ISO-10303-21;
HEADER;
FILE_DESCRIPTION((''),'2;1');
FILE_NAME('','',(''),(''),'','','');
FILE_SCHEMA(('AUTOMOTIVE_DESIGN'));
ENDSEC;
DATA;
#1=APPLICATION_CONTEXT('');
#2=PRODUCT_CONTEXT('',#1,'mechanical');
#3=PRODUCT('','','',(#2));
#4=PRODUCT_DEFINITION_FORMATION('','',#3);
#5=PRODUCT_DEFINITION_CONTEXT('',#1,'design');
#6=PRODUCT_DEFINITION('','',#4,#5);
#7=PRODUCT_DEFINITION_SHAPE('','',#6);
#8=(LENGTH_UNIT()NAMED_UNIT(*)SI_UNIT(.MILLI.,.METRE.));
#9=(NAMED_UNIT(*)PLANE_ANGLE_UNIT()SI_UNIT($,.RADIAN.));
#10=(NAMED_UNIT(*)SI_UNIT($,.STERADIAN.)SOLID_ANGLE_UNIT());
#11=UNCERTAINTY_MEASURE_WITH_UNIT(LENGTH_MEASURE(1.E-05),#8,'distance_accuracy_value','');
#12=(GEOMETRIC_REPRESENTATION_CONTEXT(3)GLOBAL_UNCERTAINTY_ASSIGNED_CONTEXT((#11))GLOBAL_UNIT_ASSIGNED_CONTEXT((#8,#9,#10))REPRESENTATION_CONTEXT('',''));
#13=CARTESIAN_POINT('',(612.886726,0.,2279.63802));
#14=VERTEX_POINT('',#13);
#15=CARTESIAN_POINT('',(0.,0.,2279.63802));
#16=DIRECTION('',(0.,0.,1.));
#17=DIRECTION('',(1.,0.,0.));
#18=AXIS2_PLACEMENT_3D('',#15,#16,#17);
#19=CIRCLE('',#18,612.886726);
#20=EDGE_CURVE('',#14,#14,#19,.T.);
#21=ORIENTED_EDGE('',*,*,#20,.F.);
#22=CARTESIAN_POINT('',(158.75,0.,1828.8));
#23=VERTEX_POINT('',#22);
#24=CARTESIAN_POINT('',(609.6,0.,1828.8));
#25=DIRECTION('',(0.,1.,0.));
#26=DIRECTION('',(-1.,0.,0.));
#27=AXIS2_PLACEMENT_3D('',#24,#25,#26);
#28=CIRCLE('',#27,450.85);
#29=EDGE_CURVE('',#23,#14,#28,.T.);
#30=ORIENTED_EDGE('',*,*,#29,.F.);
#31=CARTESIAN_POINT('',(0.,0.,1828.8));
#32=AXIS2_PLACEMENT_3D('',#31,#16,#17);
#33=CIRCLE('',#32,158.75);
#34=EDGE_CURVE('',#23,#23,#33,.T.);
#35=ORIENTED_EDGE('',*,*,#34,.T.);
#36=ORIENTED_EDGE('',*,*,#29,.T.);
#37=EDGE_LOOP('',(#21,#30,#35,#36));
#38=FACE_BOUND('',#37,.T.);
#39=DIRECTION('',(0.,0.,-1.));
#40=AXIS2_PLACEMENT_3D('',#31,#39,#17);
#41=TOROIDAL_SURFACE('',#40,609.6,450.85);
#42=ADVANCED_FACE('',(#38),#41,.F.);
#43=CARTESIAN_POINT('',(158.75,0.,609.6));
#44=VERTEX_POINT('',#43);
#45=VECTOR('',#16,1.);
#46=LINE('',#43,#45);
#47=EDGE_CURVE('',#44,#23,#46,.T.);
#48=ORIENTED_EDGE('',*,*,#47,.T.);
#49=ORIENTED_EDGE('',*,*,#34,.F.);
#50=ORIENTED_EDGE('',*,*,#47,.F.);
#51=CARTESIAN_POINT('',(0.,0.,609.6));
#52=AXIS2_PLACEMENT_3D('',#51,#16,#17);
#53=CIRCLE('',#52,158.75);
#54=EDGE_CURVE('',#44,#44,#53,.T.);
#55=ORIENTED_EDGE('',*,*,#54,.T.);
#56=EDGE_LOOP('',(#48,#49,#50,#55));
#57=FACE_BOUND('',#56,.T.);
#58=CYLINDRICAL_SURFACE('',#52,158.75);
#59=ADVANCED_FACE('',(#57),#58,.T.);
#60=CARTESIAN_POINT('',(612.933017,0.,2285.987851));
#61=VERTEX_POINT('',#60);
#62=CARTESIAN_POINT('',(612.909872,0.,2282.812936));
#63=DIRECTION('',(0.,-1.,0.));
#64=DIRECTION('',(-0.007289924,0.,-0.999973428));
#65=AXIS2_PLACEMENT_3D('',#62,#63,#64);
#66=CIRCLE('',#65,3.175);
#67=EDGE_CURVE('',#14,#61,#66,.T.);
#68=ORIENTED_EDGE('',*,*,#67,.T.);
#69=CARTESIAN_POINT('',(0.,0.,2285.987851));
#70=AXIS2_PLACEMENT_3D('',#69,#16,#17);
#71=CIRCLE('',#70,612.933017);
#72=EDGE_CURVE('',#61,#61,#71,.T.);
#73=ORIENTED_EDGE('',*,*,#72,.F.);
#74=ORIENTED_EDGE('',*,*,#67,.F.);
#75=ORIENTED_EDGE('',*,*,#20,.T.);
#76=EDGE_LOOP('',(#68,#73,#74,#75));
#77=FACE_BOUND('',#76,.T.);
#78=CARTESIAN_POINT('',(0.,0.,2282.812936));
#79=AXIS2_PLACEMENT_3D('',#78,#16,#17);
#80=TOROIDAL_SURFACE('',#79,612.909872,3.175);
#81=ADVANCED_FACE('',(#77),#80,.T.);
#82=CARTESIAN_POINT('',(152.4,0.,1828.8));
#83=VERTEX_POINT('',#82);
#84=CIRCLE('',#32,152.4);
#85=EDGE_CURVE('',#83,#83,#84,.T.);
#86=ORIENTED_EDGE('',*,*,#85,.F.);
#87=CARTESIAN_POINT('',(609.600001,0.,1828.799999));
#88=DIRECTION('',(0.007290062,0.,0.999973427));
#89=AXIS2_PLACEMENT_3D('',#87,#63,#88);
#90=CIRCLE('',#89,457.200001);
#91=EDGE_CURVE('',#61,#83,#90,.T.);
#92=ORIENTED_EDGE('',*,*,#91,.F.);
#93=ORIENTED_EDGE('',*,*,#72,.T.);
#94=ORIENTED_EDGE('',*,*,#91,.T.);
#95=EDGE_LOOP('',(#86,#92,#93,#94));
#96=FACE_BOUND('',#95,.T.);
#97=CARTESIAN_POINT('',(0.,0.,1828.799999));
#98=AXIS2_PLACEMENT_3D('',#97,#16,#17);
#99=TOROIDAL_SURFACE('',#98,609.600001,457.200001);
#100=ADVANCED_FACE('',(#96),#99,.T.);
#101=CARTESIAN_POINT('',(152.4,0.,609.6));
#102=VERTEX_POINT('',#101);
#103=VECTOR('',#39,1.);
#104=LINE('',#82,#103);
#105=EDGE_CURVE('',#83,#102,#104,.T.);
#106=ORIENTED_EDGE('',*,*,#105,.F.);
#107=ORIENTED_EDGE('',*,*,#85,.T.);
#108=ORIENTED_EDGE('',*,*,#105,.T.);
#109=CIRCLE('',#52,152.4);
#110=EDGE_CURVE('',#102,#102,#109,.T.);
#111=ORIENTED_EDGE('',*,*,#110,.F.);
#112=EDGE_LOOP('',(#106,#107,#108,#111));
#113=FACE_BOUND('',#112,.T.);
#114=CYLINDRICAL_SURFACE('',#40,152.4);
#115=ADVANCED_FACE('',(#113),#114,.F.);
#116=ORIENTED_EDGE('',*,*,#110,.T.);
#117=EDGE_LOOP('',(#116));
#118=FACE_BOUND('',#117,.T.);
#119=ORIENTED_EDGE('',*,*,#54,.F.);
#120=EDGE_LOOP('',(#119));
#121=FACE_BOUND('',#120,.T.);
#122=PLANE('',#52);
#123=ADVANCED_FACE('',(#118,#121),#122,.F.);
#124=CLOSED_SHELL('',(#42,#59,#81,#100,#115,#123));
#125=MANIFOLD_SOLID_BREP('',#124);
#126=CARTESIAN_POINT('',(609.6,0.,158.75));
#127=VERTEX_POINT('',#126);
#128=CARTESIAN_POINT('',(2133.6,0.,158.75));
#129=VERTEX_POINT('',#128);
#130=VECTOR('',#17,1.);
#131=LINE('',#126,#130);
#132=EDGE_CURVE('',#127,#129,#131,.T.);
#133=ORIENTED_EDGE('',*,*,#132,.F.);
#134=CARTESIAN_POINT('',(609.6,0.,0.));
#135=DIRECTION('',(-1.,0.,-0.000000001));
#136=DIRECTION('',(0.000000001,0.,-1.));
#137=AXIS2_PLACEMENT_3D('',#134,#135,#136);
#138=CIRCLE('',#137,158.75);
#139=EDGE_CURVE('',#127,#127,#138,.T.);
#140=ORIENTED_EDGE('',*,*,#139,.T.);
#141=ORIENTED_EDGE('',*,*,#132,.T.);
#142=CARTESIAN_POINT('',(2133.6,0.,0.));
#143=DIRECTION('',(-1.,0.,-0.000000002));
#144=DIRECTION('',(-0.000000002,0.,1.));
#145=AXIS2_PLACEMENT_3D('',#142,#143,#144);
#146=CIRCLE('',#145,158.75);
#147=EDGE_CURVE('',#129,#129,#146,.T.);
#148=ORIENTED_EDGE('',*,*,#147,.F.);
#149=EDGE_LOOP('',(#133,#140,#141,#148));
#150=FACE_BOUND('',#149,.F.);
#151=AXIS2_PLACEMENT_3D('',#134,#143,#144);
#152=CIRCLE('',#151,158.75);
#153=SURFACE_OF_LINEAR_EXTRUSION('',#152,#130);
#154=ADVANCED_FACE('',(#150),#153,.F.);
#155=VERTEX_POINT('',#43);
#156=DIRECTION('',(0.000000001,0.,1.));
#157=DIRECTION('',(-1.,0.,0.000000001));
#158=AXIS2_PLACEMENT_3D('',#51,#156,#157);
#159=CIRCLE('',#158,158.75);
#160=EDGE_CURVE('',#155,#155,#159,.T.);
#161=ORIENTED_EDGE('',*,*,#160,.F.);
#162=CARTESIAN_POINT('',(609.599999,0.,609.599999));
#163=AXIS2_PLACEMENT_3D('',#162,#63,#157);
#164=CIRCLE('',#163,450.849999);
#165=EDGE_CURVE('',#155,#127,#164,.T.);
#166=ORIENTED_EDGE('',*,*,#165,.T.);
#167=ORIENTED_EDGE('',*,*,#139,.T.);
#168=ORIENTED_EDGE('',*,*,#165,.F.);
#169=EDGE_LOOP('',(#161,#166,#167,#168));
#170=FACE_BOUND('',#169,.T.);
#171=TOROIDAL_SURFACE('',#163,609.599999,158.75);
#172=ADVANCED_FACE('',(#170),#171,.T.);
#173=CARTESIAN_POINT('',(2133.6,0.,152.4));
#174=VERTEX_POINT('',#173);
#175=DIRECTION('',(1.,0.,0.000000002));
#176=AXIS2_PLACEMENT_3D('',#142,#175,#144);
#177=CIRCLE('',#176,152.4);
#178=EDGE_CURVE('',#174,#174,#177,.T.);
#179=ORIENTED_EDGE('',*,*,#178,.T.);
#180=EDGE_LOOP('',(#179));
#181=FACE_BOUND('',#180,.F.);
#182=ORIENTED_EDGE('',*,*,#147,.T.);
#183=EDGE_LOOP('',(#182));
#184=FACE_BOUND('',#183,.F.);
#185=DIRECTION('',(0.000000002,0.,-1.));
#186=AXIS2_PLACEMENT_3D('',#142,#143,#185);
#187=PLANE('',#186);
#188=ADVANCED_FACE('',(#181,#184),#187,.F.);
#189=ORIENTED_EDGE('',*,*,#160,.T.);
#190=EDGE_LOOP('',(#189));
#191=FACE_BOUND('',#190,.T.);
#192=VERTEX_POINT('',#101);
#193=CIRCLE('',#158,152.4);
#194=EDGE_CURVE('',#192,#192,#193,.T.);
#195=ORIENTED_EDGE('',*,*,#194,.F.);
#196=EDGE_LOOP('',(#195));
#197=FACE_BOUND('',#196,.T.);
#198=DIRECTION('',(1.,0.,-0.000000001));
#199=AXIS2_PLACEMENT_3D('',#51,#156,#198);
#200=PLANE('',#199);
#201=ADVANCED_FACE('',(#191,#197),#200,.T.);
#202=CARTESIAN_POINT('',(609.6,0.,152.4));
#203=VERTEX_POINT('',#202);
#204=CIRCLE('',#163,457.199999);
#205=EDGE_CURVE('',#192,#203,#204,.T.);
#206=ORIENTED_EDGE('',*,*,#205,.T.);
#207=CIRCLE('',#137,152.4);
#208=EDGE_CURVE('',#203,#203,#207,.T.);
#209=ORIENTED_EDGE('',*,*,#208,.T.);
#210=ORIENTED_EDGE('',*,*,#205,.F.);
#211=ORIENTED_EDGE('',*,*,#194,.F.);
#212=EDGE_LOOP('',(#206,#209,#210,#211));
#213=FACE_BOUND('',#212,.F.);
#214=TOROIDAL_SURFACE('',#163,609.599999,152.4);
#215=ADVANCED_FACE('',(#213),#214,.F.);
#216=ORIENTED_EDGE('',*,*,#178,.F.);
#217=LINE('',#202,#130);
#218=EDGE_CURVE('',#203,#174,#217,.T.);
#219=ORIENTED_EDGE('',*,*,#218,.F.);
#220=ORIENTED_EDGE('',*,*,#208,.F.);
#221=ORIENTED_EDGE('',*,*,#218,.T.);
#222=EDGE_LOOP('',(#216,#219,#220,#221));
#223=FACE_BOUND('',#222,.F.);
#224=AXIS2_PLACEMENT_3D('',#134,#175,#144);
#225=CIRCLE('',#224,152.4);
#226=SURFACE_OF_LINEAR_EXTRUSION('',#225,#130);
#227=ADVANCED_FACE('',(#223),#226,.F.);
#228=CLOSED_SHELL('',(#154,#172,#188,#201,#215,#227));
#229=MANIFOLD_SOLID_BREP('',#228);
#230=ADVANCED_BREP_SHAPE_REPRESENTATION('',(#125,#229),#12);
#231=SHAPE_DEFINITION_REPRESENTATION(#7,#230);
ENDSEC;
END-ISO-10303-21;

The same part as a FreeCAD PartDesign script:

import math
import FreeCAD as App
import Part
import Sketcher
from FreeCAD import Vector
Q = App.Units.Quantity

doc = App.newDocument("Part")
params = doc.addObject("Spreadsheet::Sheet", "Params")
for row, (alias, value) in enumerate([
    ("sketch1_diameter", "12 in"),
    ("sketch1_diameter2", "12.5 in"),
    ("sketch2_radius", "24 in"),
    ("sketch2_width", "60 in"),
    ("sketch3_radius", "18 in"),
    ("sketch3_height", "48 in"),
    ("sketch3_radius2", "17.75 in"),
    ("revolution_angle", "360 deg"),
], start=1):
    params.set(f"A{row}", alias)
    params.set(f"B{row}", "=" + value)
    params.setAlias(f"B{row}", alias)

body = doc.addObject("PartDesign::Body", "Body")

# Sketch on XY plane
sketch1 = body.newObject("Sketcher::SketchObject", "Sketch")
sketch1.AttachmentSupport = (doc.getObject("XY_Plane"), [""])
sketch1.MapMode = "FlatFace"
sketch1.AttachmentOffset = App.Placement(Vector(0, 0, 24 * 25.4), App.Rotation())
sketch1.addGeometry(Part.Circle(Vector(0, 0, 0), Vector(0, 0, 1), 159), False)
sketch1.addGeometry(Part.Circle(Vector(0, 0, 0), Vector(0, 0, 1), 152), False)
sketch1.addConstraint(Sketcher.Constraint("Coincident", 0, 3, -1, 1))
sketch1.addConstraint(Sketcher.Constraint("Coincident", 1, 3, -1, 1))
sketch1.addConstraint(Sketcher.Constraint("Diameter", 1, Q("12 in")))
sketch1.addConstraint(Sketcher.Constraint("Diameter", 0, Q("12.5 in")))
sketch1.setExpression("Constraints[2]", "Params.sketch1_diameter")
sketch1.setExpression("Constraints[3]", "Params.sketch1_diameter2")

# Sketch on XZ plane
sketch2 = body.newObject("Sketcher::SketchObject", "Sketch001")
sketch2.AttachmentSupport = (doc.getObject("XZ_Plane"), [""])
sketch2.MapMode = "FlatFace"
sketch2.addGeometry(Part.ArcOfCircle(Part.Circle(Vector(610, 610, 0), Vector(0, 0, 1), 610), math.radians(180), math.radians(270)), False)
sketch2.addGeometry(Part.LineSegment(Vector(610, 0, 0), Vector(2134, 0, 0)), False)
sketch2.addConstraint(Sketcher.Constraint("Tangent", 0, 2, 1, 1))
sketch2.addConstraint(Sketcher.Constraint("Horizontal", 1))
sketch2.addConstraint(Sketcher.Constraint("PointOnObject", 0, 1, -2))
sketch2.addConstraint(Sketcher.Constraint("PointOnObject", 0, 2, -1))
sketch2.addConstraint(Sketcher.Constraint("Radius", 0, Q("24 in")))
sketch2.addConstraint(Sketcher.Constraint("DistanceX", 1, 1, 1, 2, Q("60 in")))
sketch2.addConstraint(Sketcher.Constraint("DistanceY", -1, 1, 0, 1, Q("24 in")))
sketch2.setExpression("Constraints[4]", "Params.sketch2_radius")
sketch2.setExpression("Constraints[5]", "Params.sketch2_width")
doc.recompute()

additivepipe = body.newObject("PartDesign::AdditivePipe", "AdditivePipe")
additivepipe.Profile = sketch1
additivepipe.Spine = (sketch2, ["Edge1", "Edge2"])
body2 = doc.addObject("PartDesign::Body", "Body001")

# Sketch on XZ plane
sketch3 = body2.newObject("Sketcher::SketchObject", "Sketch002")
sketch3.AttachmentSupport = (doc.getObject("XZ_Plane001"), [""])
sketch3.MapMode = "FlatFace"
sketch3.addGeometry(Part.LineSegment(Vector(152.4, 1828.8, 0), Vector(152.4, 609.6, 0)), False)
sketch3.addGeometry(Part.LineSegment(Vector(152.4, 609.6, 0), Vector(158.8, 609.6, 0)), False)
sketch3.addGeometry(Part.LineSegment(Vector(158.8, 609.6, 0), Vector(158.8, 1828.8, 0)), False)
sketch3.addGeometry(Part.ArcOfCircle(Part.Circle(Vector(609.6, 1828.8, 0), Vector(0, 0, 1), 450.9), math.radians(90), math.radians(180)), False)
sketch3.addGeometry(Part.ArcOfCircle(Part.Circle(Vector(612.9, 2282.8, 0), Vector(0, 0, 1), 3.2), math.radians(-90), math.radians(90)), False)
sketch3.addGeometry(Part.ArcOfCircle(Part.Circle(Vector(609.6, 1828.8, 0), Vector(0, 0, 1), 457.2), math.radians(90), math.radians(180)), False)
sketch3.addConstraint(Sketcher.Constraint("Coincident", 0, 2, 1, 1))
sketch3.addConstraint(Sketcher.Constraint("Coincident", 1, 2, 2, 1))
sketch3.addConstraint(Sketcher.Constraint("Tangent", 2, 2, 3, 2))
sketch3.addConstraint(Sketcher.Constraint("Tangent", 3, 1, 4, 1))
sketch3.addConstraint(Sketcher.Constraint("Tangent", 4, 2, 5, 1))
sketch3.addConstraint(Sketcher.Constraint("Tangent", 5, 2, 0, 1))
sketch3.addConstraint(Sketcher.Constraint("Vertical", 0))
sketch3.addConstraint(Sketcher.Constraint("Horizontal", 1))
sketch3.addConstraint(Sketcher.Constraint("Vertical", 2))
sketch3.addConstraint(Sketcher.Constraint("Coincident", 5, 3, 3, 3))
sketch3.addConstraint(Sketcher.Constraint("Radius", 5, Q("18 in")))
sketch3.addConstraint(Sketcher.Constraint("DistanceY", 0, 2, 0, 1, Q("48 in")))
sketch3.addConstraint(Sketcher.Constraint("Radius", 3, Q("17.75 in")))
sketch3.addConstraint(Sketcher.Constraint("DistanceX", -1, 1, 3, 3, Q("24 in")))
sketch3.addConstraint(Sketcher.Constraint("DistanceY", -1, 1, 3, 3, Q("72 in")))
sketch3.addConstraint(Sketcher.Constraint("DistanceX", -1, 1, 4, 3, 612.909872))
sketch3.setExpression("Constraints[10]", "Params.sketch3_radius")
sketch3.setExpression("Constraints[11]", "Params.sketch3_height")
sketch3.setExpression("Constraints[12]", "Params.sketch3_radius2")
revolution = body2.newObject("PartDesign::Revolution", "Revolution")
revolution.Profile = sketch3
revolution.ReferenceAxis = (sketch3, ["V_Axis"])
revolution.setExpression("Angle", "Params.revolution_angle")

doc.recompute()
